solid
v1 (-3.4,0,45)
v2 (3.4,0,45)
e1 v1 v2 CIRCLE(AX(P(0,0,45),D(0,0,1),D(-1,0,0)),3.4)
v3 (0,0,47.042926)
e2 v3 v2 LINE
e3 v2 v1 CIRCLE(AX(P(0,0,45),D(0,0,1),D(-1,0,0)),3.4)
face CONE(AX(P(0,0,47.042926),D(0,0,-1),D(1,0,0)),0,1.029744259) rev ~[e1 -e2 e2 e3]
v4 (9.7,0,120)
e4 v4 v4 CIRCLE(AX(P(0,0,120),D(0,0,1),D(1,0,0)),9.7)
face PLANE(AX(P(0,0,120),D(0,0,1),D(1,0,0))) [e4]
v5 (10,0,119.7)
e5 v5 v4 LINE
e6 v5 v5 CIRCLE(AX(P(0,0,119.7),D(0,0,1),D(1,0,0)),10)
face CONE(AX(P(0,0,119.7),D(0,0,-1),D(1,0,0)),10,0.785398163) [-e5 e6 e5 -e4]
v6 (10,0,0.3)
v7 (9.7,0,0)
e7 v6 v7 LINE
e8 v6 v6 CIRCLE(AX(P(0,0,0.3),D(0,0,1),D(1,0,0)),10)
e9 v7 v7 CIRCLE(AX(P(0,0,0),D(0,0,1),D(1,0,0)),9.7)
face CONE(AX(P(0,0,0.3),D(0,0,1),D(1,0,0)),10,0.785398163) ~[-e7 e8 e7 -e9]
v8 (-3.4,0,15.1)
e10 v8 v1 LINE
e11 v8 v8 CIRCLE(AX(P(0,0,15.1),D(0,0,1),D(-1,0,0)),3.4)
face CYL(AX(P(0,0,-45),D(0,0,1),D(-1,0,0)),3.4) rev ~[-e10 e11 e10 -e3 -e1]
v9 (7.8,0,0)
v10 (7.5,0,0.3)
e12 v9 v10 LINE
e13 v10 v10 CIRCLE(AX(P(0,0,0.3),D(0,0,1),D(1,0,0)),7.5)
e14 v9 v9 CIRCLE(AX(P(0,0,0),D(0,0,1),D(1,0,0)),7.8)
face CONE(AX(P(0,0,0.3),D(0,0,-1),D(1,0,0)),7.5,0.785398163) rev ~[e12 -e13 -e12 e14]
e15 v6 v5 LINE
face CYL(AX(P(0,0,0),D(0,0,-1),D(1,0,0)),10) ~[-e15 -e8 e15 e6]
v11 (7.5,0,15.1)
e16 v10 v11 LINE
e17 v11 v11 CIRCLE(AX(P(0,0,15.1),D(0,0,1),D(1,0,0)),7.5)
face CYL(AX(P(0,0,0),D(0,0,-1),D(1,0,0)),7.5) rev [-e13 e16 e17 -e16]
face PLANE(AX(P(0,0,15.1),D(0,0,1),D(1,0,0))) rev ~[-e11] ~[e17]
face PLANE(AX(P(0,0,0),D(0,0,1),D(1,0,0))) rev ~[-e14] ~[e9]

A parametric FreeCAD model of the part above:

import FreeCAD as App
import Part
import Sketcher
from FreeCAD import Vector
Q = App.Units.Quantity


def edges_at(feature, points):
    """Names of the edges that pass closest to the given points."""
    edges = feature.Shape.Edges
    near = lambda p: min(range(len(edges)), key=lambda i: edges[i].distToShape(Part.Vertex(*p))[0])
    return sorted({f"Edge{near(p) + 1}" for p in points})

doc = App.newDocument("Part")
params = doc.addObject("Spreadsheet::Sheet", "Params")
for row, (alias, value) in enumerate([
    ("sketch1_diameter", "20 mm"),
    ("pad1_length", "120 mm"),
    ("sketch2_diameter", "15 mm"),
    ("pocket1_length", "15.1 mm"),
    ("sketch3_diameter", "6.8 mm"),
    ("hole_diameter", "6.8 mm"),
    ("hole_depth", "45 mm"),
    ("chamfer_size", "0.3 mm"),
], start=1):
    params.set(f"A{row}", alias)
    params.set(f"B{row}", "=" + value)
    params.setAlias(f"B{row}", alias)

body = doc.addObject("PartDesign::Body", "Body")

# Sketch on XY plane
sketch1 = doc.addObject("Sketcher::SketchObject", "Sketch")
body.addObject(sketch1)
sketch1.AttachmentSupport = (doc.XY_Plane, [""])
sketch1.MapMode = "FlatFace"
sketch1.addGeometry(Part.Circle(Vector(0, 0, 0), Vector(0, 0, 1), 10), False)
sketch1.addConstraint([
    Sketcher.Constraint("Coincident", 0, 3, -1, 1),
    Sketcher.Constraint("Diameter", 0, Q("20 mm")),
])
sketch1.setExpression("Constraints[1]", "Params.sketch1_diameter")
pad1 = doc.addObject("PartDesign::Pad", "Pad")
body.addObject(pad1)
pad1.Profile = sketch1
pad1.setExpression("Length", "Params.pad1_length")

# Sketch on XY plane
sketch2 = doc.addObject("Sketcher::SketchObject", "Sketch001")
body.addObject(sketch2)
sketch2.AttachmentSupport = (doc.XY_Plane, [""])
sketch2.MapMode = "FlatFace"
sketch2.addGeometry(Part.Circle(Vector(0, 0, 0), Vector(0, 0, 1), 7.5), False)
sketch2.addConstraint([
    Sketcher.Constraint("Coincident", 0, 3, -1, 1),
    Sketcher.Constraint("Diameter", 0, Q("15 mm")),
])
sketch2.setExpression("Constraints[1]", "Params.sketch2_diameter")
pocket1 = doc.addObject("PartDesign::Pocket", "Pocket")
body.addObject(pocket1)
pocket1.Profile = sketch2
pocket1.setExpression("Length", "Params.pocket1_length")
pocket1.Reversed = True

# Sketch on XY plane
sketch3 = doc.addObject("Sketcher::SketchObject", "Sketch002")
body.addObject(sketch3)
sketch3.AttachmentSupport = (doc.XY_Plane, [""])
sketch3.MapMode = "FlatFace"
sketch3.addGeometry(Part.Circle(Vector(0, 0, 0), Vector(0, 0, 1), 3.4), False)
sketch3.addConstraint([
    Sketcher.Constraint("Coincident", 0, 3, -1, 1),
    Sketcher.Constraint("Diameter", 0, Q("6.8 mm")),
])
sketch3.setExpression("Constraints[1]", "Params.sketch3_diameter")
doc.recompute()
hole = doc.addObject("PartDesign::Hole", "Hole")
body.addObject(hole)
hole.Profile = sketch3
hole.ThreadType = "None"
hole.setExpression("Diameter", "Params.hole_diameter")
hole.DepthType = "Dimension"
hole.setExpression("Depth", "Params.hole_depth")
hole.DrillPoint = "Angled"
hole.DrillPointAngle = 118
hole.Reversed = True
doc.recompute()

chamfer = doc.addObject("PartDesign::Chamfer", "Chamfer")
body.addObject(chamfer)
chamfer.Base = (hole, edges_at(hole, [(-10, 0, 120), (-7.5, 0, 0), (-10, 0, 0)]))
chamfer.setExpression("Size", "Params.chamfer_size")

doc.recompute()
